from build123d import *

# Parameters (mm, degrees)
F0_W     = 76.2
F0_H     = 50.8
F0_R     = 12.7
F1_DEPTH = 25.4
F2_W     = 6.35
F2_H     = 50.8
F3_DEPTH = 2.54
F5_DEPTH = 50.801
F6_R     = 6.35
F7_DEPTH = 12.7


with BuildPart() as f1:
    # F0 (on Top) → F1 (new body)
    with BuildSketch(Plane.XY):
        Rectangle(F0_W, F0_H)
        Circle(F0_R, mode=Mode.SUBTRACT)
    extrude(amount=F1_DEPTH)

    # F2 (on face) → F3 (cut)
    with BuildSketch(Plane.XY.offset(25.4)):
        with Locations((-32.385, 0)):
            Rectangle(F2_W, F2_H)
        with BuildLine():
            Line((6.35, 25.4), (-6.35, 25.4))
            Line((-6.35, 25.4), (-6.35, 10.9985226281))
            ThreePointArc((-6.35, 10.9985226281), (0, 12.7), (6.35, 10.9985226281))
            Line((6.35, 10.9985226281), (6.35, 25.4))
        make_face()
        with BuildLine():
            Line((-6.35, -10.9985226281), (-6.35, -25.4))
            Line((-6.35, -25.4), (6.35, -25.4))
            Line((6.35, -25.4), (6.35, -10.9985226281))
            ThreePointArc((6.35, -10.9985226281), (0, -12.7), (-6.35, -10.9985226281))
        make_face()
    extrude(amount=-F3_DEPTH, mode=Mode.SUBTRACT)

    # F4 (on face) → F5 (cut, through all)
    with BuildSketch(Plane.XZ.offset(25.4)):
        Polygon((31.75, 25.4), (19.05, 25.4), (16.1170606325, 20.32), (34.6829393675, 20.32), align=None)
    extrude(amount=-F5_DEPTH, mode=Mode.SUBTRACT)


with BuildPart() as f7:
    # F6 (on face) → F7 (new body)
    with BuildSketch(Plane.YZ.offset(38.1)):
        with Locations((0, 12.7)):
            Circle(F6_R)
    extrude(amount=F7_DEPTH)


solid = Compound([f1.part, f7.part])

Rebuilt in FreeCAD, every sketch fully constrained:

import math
import FreeCAD as App
import Part
import Sketcher
from FreeCAD import Vector
Q = App.Units.Quantity

doc = App.newDocument("Part")
body = doc.addObject("PartDesign::Body", "Body")

sketch1 = body.newObject("Sketcher::SketchObject", "Sketch")
sketch1.AttachmentSupport = (doc.getObject("XY_Plane"), [""])
sketch1.MapMode = "FlatFace"
sketch1.addGeometry([
    Part.LineSegment(Vector(-38.1, 25.4, 0), Vector(-38.1, -25.4, 0)),
    Part.LineSegment(Vector(-38.1, -25.4, 0), Vector(38.1, -25.4, 0)),
    Part.LineSegment(Vector(38.1, -25.4, 0), Vector(38.1, 25.4, 0)),
    Part.LineSegment(Vector(38.1, 25.4, 0), Vector(-38.1, 25.4, 0)),
    Part.Circle(Vector(0, 0, 0), Vector(0, 0, 1), 12.7),
], False)
sketch1.addConstraint([
    Sketcher.Constraint("Coincident", 0, 2, 1, 1),
    Sketcher.Constraint("Coincident", 1, 2, 2, 1),
    Sketcher.Constraint("Coincident", 2, 2, 3, 1),
    Sketcher.Constraint("Coincident", 3, 2, 0, 1),
    Sketcher.Constraint("Vertical", 0),
    Sketcher.Constraint("Horizontal", 1),
    Sketcher.Constraint("Vertical", 2),
    Sketcher.Constraint("Horizontal", 3),
    Sketcher.Constraint("Coincident", 4, 3, -1, 1),
    Sketcher.Constraint("Symmetric", 0, 2, 2, 2, -1, 1),
    Sketcher.Constraint("Diameter", 4, Q("1 in")),
    Sketcher.Constraint("DistanceX", 1, 1, 1, 2, Q("3 in")),
    Sketcher.Constraint("DistanceY", 0, 2, 0, 1, Q("2 in")),
])
pad1 = body.newObject("PartDesign::Pad", "Pad")
pad1.Profile = sketch1
pad1.Length = Q("1 in")

sketch2 = body.newObject("Sketcher::SketchObject", "Sketch001")
sketch2.AttachmentSupport = (doc.getObject("XY_Plane"), [""])
sketch2.MapMode = "FlatFace"
sketch2.AttachmentOffset = App.Placement(Vector(0, 0, 1 * 25.4), App.Rotation())
sketch2.addGeometry([
    Part.LineSegment(Vector(-35.56, 25.4, 0), Vector(-35.56, -25.4, 0)),
    Part.LineSegment(Vector(-35.56, -25.4, 0), Vector(-29.21, -25.4, 0)),
    Part.LineSegment(Vector(-29.21, -25.4, 0), Vector(-29.21, 25.4, 0)),
    Part.LineSegment(Vector(-29.21, 25.4, 0), Vector(-35.56, 25.4, 0)),
    Part.LineSegment(Vector(6.35, 25.4, 0), Vector(-6.35, 25.4, 0)),
    Part.LineSegment(Vector(-6.35, 25.4, 0), Vector(-6.35, 10.998523, 0)),
    Part.ArcOfCircle(Part.Circle(Vector(0, 0, 0), Vector(0, 0, 1), 12.7), math.radians(60), math.radians(120)),
    Part.LineSegment(Vector(6.35, 10.998523, 0), Vector(6.35, 25.4, 0)),
    Part.LineSegment(Vector(-6.35, -10.998523, 0), Vector(-6.35, -25.4, 0)),
    Part.LineSegment(Vector(-6.35, -25.4, 0), Vector(6.35, -25.4, 0)),
    Part.LineSegment(Vector(6.35, -25.4, 0), Vector(6.35, -10.998523, 0)),
    Part.ArcOfCircle(Part.Circle(Vector(0, 0, 0), Vector(0, 0, 1), 12.7), math.radians(-120), math.radians(-60)),
], False)
sketch2.addConstraint([
    Sketcher.Constraint("Coincident", 0, 2, 1, 1),
    Sketcher.Constraint("Coincident", 1, 2, 2, 1),
    Sketcher.Constraint("Coincident", 2, 2, 3, 1),
    Sketcher.Constraint("Coincident", 3, 2, 0, 1),
    Sketcher.Constraint("Coincident", 4, 2, 5, 1),
    Sketcher.Constraint("Coincident", 5, 2, 6, 2),
    Sketcher.Constraint("Coincident", 6, 1, 7, 1),
    Sketcher.Constraint("Coincident", 7, 2, 4, 1),
    Sketcher.Constraint("Coincident", 8, 2, 9, 1),
    Sketcher.Constraint("Coincident", 9, 2, 10, 1),
    Sketcher.Constraint("Coincident", 10, 2, 11, 2),
    Sketcher.Constraint("Coincident", 11, 1, 8, 1),
    Sketcher.Constraint("Vertical", 0),
    Sketcher.Constraint("Horizontal", 1),
    Sketcher.Constraint("Vertical", 2),
    Sketcher.Constraint("Horizontal", 3),
    Sketcher.Constraint("Horizontal", 4),
    Sketcher.Constraint("Vertical", 5),
    Sketcher.Constraint("Vertical", 7),
    Sketcher.Constraint("Vertical", 8),
    Sketcher.Constraint("Horizontal", 9),
    Sketcher.Constraint("Vertical", 10),
    Sketcher.Constraint("Coincident", 6, 3, -1, 1),
    Sketcher.Constraint("Coincident", 11, 3, -1, 1),
    Sketcher.Constraint("Equal", 6, 11),
    Sketcher.Constraint("Symmetric", 7, 2, 8, 2, -1, 1),
    Sketcher.Constraint("Horizontal", 3, 2, 4, 2),
    Sketcher.Constraint("Horizontal", 5, 2, 6, 1),
    Sketcher.Constraint("Horizontal", 1, 2, 8, 2),
    Sketcher.Constraint("Horizontal", 10, 2, 11, 1),
    Sketcher.Constraint("Radius", 6, Q("0.5 in")),
    Sketcher.Constraint("DistanceY", 0, 2, 0, 1, Q("2 in")),
    Sketcher.Constraint("DistanceX", 4, 2, 4, 1, Q("0.5 in")),
    Sketcher.Constraint("DistanceX", 1, 1, 1, 2, Q("0.25 in")),
    Sketcher.Constraint("DistanceX", 0, 2, -1, 1, Q("1.4 in")),
])
pocket1 = body.newObject("PartDesign::Pocket", "Pocket")
pocket1.Profile = sketch2
pocket1.Length = Q("0.1 in")

sketch3 = body.newObject("Sketcher::SketchObject", "Sketch002")
sketch3.AttachmentSupport = (doc.getObject("XZ_Plane"), [""])
sketch3.MapMode = "FlatFace"
sketch3.AttachmentOffset = App.Placement(Vector(0, 0, 1 * 25.4), App.Rotation())
sketch3.addGeometry([
    Part.LineSegment(Vector(31.75, 25.4, 0), Vector(19.05, 25.4, 0)),
    Part.LineSegment(Vector(19.05, 25.4, 0), Vector(16.117061, 20.32, 0)),
    Part.LineSegment(Vector(16.117061, 20.32, 0), Vector(34.682939, 20.32, 0)),
    Part.LineSegment(Vector(34.682939, 20.32, 0), Vector(31.75, 25.4, 0)),
], False)
sketch3.addConstraint([
    Sketcher.Constraint("Coincident", 0, 2, 1, 1),
    Sketcher.Constraint("Coincident", 1, 2, 2, 1),
    Sketcher.Constraint("Coincident", 2, 2, 3, 1),
    Sketcher.Constraint("Coincident", 3, 2, 0, 1),
    Sketcher.Constraint("Horizontal", 0),
    Sketcher.Constraint("Horizontal", 2),
    Sketcher.Constraint("Equal", 1, 3),
    Sketcher.Constraint("DistanceX", 0, 2, 0, 1, Q("0.5 in")),
    Sketcher.Constraint("DistanceY", -1, 1, 0, 2, Q("1 in")),
    Sketcher.Constraint("Angle", 1, Q("-120 deg")),
    Sketcher.Constraint("DistanceY", -1, 1, 1, 2, Q("0.8 in")),
    Sketcher.Constraint("DistanceX", -1, 1, 0, 2, Q("0.75 in")),
])
pocket2 = body.newObject("PartDesign::Pocket", "Pocket001")
pocket2.Profile = sketch3
pocket2.Type = "ThroughAll"
body2 = doc.addObject("PartDesign::Body", "Body001")

sketch4 = body2.newObject("Sketcher::SketchObject", "Sketch003")
sketch4.AttachmentSupport = (doc.getObject("YZ_Plane001"), [""])
sketch4.MapMode = "FlatFace"
sketch4.AttachmentOffset = App.Placement(Vector(0, 0, 1.5 * 25.4), App.Rotation())
sketch4.addGeometry(Part.Circle(Vector(0, 12.7, 0), Vector(0, 0, 1), 6.35), False)
sketch4.addConstraint([
    Sketcher.Constraint("PointOnObject", 0, 3, -2),
    Sketcher.Constraint("Diameter", 0, Q("0.5 in")),
    Sketcher.Constraint("DistanceY", -1, 1, 0, 3, Q("0.5 in")),
])
pad2 = body2.newObject("PartDesign::Pad", "Pad001")
pad2.Profile = sketch4
pad2.Length = Q("0.5 in")

doc.recompute()
